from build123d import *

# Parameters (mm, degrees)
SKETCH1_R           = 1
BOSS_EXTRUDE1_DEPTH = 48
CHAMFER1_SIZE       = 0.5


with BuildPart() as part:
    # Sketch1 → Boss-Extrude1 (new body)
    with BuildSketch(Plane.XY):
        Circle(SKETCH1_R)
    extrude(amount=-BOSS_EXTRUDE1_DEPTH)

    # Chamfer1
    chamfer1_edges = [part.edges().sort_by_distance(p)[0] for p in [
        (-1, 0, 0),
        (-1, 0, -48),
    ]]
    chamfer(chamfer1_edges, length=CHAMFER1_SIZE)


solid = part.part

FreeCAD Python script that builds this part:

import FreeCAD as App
import Part
import Sketcher

V = App.Vector
Q = App.Units.Quantity


def edges_at(feature, points):
    """Names of the edges that pass closest to the given points."""
    edges = feature.Shape.Edges
    near = lambda p: min(range(len(edges)), key=lambda i: edges[i].distToShape(Part.Vertex(*p))[0])
    return sorted({f"Edge{near(p) + 1}" for p in points})

doc = App.newDocument("Part")
body = doc.addObject("PartDesign::Body", "Body")

# Sketch on XY plane
sketch1 = doc.addObject("Sketcher::SketchObject", "Sketch")
body.addObject(sketch1)
sketch1.AttachmentSupport = (doc.XY_Plane, [""])
sketch1.MapMode = "FlatFace"
sketch1.addGeometry(Part.Circle(V(0, 0, 0), V(0, 0, 1), 1), False)
sketch1.addConstraint([
    Sketcher.Constraint("Coincident", 0, 3, -1, 1),
    Sketcher.Constraint("Diameter", 0, Q("2 mm")),
])
pad1 = doc.addObject("PartDesign::Pad", "Pad")
body.addObject(pad1)
pad1.Profile = sketch1
pad1.Length = 48
pad1.Reversed = True
doc.recompute()

chamfer = doc.addObject("PartDesign::Chamfer", "Chamfer")
body.addObject(chamfer)
chamfer.Base = (pad1, edges_at(pad1, [(-1, 0, 0), (-1, 0, -48)]))
chamfer.Size = 0.5

doc.recompute()
